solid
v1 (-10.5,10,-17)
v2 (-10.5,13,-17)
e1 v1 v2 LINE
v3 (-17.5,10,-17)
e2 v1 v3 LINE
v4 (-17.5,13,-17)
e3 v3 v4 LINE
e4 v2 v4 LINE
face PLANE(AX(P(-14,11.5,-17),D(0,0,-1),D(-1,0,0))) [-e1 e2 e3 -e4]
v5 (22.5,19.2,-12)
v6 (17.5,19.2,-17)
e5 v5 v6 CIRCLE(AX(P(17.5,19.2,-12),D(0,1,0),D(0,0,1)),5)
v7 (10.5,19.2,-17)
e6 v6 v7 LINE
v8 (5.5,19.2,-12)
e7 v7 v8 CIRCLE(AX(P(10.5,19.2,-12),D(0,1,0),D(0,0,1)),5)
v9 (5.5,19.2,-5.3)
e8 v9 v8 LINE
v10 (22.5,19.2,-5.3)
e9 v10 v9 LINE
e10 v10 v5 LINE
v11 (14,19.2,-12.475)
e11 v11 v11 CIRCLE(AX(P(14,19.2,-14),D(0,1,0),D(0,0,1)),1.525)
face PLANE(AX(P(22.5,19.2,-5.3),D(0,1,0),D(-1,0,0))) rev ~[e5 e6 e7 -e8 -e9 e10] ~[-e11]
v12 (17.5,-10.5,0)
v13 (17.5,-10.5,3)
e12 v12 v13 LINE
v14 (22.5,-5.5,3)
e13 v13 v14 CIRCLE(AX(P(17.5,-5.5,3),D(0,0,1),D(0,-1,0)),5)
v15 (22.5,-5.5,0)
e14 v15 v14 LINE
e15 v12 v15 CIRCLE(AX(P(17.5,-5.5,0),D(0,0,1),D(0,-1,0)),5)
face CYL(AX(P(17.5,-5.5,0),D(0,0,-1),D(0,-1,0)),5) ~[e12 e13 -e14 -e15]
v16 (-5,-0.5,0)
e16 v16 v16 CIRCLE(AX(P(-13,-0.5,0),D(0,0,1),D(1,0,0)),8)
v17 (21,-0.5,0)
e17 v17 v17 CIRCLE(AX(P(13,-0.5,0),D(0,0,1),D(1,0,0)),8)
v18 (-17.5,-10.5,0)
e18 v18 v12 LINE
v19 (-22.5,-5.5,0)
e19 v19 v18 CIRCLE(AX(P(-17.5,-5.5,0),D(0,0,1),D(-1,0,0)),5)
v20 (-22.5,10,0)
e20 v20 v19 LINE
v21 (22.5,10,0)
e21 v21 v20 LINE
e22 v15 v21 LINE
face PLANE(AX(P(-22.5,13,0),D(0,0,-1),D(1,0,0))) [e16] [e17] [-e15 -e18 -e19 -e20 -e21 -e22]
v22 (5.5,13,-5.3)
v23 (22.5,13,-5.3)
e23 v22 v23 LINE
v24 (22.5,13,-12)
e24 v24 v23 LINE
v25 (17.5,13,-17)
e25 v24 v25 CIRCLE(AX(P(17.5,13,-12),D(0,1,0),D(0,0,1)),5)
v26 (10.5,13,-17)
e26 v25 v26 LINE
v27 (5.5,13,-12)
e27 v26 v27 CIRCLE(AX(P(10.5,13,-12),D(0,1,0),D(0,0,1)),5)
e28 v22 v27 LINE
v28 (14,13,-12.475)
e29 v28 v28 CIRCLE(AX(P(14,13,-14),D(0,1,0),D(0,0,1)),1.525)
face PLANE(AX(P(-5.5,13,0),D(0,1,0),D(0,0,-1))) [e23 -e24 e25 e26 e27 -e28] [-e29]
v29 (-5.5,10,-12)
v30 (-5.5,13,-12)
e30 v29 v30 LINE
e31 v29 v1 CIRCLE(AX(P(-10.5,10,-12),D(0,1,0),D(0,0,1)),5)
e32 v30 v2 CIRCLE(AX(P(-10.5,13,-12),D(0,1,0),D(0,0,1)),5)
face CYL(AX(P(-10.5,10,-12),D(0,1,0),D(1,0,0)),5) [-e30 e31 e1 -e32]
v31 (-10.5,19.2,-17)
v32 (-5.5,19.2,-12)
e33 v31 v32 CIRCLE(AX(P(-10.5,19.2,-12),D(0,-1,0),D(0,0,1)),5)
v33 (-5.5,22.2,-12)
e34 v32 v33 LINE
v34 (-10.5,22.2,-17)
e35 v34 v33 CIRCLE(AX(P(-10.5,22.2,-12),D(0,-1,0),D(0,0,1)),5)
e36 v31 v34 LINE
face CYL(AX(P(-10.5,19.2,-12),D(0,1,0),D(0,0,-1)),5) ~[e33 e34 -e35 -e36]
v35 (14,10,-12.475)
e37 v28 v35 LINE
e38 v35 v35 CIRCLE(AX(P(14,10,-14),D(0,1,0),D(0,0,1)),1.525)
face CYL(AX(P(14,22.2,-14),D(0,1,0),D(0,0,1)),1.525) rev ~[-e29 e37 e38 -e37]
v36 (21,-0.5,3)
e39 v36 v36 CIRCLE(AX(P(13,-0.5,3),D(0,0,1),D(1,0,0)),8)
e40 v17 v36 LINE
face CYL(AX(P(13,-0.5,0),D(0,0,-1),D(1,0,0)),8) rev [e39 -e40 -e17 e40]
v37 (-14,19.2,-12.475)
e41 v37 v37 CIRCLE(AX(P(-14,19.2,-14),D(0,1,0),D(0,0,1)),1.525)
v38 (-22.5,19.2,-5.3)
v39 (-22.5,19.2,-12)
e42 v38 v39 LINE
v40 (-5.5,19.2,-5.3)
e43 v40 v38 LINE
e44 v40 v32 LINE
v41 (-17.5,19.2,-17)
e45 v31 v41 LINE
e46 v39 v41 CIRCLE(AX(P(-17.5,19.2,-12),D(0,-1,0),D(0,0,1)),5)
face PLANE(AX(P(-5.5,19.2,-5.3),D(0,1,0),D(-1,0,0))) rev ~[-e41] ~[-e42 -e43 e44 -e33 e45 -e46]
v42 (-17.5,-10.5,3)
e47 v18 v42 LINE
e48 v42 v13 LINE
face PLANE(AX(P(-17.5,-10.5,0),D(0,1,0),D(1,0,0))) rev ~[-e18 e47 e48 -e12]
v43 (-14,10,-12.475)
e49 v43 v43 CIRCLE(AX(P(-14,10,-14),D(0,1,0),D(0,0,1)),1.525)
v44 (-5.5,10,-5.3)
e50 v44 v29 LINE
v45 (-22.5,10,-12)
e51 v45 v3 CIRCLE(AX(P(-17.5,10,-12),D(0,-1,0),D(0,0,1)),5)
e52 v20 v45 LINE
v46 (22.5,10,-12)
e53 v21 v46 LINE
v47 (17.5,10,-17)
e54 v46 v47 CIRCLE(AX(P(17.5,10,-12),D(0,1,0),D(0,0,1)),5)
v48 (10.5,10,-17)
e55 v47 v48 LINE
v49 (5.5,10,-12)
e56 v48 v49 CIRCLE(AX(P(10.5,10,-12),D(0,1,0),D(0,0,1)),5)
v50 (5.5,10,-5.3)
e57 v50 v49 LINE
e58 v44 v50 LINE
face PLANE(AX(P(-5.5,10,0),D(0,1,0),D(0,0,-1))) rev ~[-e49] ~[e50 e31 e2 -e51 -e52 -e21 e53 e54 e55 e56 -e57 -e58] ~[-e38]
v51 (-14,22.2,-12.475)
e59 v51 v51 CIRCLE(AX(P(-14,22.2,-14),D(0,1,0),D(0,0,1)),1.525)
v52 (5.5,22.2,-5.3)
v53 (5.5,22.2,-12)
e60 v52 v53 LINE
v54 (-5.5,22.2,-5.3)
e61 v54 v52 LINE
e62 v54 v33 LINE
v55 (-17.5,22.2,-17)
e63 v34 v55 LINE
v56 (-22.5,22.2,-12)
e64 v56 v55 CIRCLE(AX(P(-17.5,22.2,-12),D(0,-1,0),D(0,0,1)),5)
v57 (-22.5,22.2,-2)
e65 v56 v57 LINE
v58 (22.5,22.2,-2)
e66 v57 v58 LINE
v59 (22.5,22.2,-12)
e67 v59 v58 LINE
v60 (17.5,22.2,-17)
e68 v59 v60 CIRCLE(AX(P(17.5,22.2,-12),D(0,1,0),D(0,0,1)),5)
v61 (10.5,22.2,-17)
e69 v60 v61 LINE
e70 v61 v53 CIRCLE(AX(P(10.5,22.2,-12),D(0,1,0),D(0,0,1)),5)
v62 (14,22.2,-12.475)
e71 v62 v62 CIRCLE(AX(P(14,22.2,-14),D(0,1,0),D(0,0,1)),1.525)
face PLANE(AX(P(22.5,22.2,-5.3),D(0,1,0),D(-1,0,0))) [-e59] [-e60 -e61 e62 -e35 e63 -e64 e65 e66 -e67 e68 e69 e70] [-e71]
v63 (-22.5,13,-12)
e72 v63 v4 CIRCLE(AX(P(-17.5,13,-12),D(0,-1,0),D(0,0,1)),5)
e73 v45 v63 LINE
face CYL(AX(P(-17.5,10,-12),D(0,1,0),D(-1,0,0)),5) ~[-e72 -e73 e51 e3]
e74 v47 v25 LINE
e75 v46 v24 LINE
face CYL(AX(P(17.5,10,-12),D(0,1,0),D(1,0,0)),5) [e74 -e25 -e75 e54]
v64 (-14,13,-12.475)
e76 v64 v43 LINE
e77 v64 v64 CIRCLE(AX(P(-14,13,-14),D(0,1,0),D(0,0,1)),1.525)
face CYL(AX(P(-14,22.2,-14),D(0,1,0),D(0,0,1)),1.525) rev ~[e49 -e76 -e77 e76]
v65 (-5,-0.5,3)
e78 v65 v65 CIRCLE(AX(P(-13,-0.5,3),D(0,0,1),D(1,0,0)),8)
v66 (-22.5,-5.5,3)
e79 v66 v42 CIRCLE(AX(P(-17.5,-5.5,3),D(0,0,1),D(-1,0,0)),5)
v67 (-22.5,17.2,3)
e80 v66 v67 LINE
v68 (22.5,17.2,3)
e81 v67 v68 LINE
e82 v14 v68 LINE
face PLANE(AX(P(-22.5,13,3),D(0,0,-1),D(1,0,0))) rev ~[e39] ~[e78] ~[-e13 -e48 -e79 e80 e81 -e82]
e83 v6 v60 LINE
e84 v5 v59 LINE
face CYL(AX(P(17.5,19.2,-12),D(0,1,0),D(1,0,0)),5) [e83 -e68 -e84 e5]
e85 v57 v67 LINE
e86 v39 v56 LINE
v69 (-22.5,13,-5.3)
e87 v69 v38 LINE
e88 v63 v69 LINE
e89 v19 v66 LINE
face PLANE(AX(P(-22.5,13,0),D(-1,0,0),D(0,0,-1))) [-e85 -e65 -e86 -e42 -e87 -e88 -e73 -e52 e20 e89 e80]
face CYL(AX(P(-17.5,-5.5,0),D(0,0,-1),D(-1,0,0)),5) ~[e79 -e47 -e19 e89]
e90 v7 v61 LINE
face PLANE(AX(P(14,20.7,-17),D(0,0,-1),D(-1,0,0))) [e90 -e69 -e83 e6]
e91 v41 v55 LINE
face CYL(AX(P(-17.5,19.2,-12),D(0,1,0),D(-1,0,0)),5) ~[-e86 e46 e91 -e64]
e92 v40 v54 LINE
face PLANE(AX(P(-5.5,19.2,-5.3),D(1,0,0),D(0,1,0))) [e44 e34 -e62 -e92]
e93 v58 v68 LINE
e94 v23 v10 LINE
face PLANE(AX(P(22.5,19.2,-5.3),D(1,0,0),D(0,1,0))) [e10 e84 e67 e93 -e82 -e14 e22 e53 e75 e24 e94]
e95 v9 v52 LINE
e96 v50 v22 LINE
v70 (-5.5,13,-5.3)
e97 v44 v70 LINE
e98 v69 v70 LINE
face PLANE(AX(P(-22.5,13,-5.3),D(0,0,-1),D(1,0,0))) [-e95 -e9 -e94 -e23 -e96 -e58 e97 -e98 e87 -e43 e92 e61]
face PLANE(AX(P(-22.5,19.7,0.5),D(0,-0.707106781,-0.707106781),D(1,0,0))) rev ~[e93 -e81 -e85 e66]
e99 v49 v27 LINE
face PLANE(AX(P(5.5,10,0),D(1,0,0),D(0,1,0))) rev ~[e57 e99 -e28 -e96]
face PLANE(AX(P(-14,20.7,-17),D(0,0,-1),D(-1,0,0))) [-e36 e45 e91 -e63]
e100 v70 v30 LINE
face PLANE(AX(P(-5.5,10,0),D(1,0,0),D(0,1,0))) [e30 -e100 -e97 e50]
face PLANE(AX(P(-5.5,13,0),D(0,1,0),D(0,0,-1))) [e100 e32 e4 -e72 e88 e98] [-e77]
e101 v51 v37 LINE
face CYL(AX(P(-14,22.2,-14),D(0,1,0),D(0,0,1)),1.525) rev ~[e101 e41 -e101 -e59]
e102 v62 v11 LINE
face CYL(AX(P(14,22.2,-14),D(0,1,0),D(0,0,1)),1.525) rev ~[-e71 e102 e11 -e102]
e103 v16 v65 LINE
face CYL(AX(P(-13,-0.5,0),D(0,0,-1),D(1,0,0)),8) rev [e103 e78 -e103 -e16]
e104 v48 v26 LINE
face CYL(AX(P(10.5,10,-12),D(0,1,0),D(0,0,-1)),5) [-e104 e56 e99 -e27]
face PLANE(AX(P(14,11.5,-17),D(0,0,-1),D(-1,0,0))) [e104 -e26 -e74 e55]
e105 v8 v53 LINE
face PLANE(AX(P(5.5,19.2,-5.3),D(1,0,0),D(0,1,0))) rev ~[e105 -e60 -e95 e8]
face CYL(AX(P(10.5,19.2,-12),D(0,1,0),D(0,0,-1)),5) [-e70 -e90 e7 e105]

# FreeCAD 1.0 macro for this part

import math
import FreeCAD as App
import Part
import Sketcher

V = App.Vector


def edges_at(feature, points):
    """Names of the edges that pass closest to the given points."""
    edges = feature.Shape.Edges
    near = lambda p: min(range(len(edges)), key=lambda i: edges[i].distToShape(Part.Vertex(*p))[0])
    return sorted({f"Edge{near(p) + 1}" for p in points})

doc = App.newDocument("Part")
params = doc.addObject("Spreadsheet::Sheet", "Params")
for row, (alias, value) in enumerate([
    ("sketch1_diameter", "16 mm"),
    ("sketch1_radius", "5 mm"),
    ("sketch1_width", "35 mm"),
    ("sketch1_height", "18.5 mm"),
    ("pad1_length", "3 mm"),
    ("sketch2_width", "17 mm"),
    ("sketch2_height", "3 mm"),
    ("pad2_length", "17 mm"),
    ("sketch3_width", "45 mm"),
    ("sketch3_height", "3 mm"),
    ("pad3_length", "9.2 mm"),
    ("sketch4_width", "3 mm"),
    ("sketch4_height", "5.3 mm"),
    ("sketch5_width", "45 mm"),
    ("sketch5_height", "5.3 mm"),
    ("pad5_length", "9.2 mm"),
    ("sketch6_width", "17 mm"),
    ("sketch6_height", "3 mm"),
    ("pad6_length", "11.7 mm"),
    ("sketch7_diameter", "3.05 mm"),
    ("chamfer_size", "5 mm"),
    ("fillet_radius", "5 mm"),
], start=1):
    params.set(f"A{row}", alias)
    params.set(f"B{row}", "=" + value)
    params.setAlias(f"B{row}", alias)

body = doc.addObject("PartDesign::Body", "Body")

sketch1 = doc.addObject("Sketcher::SketchObject", "Sketch")
body.addObject(sketch1)
sketch1.AttachmentSupport = (doc.XY_Plane, [""])
sketch1.MapMode = "FlatFace"
sketch1.addGeometry([
    Part.LineSegment(V(-18, -10, 0), V(18, -10, 0)),
    Part.ArcOfCircle(Part.Circle(V(18, -6, 0), V(0, 0, 1), 5), math.radians(-90), math.radians(0)),
    Part.LineSegment(V(22, -6, 0), V(22, 13, 0)),
    Part.LineSegment(V(22, 13, 0), V(-22, 13, 0)),
    Part.LineSegment(V(-22, 13, 0), V(-22, -6, 0)),
    Part.ArcOfCircle(Part.Circle(V(-18, -6, 0), V(0, 0, 1), 5), math.radians(180), math.radians(270)),
    Part.Circle(V(-13, 0, 0), V(0, 0, 1), 8),
    Part.Circle(V(13, 0, 0), V(0, 0, 1), 8),
], False)
sketch1.addConstraint([
    Sketcher.Constraint("Tangent", 0, 2, 1, 1),
    Sketcher.Constraint("Tangent", 1, 2, 2, 1),
    Sketcher.Constraint("Coincident", 2, 2, 3, 1),
    Sketcher.Constraint("Coincident", 3, 2, 4, 1),
    Sketcher.Constraint("Tangent", 4, 2, 5, 1),
    Sketcher.Constraint("Tangent", 5, 2, 0, 1),
    Sketcher.Constraint("Horizontal", 0),
    Sketcher.Constraint("Vertical", 2),
    Sketcher.Constraint("Horizontal", 3),
    Sketcher.Constraint("Vertical", 4),
    Sketcher.Constraint("Equal", 1, 5),
    Sketcher.Constraint("Equal", 6, 7),
    Sketcher.Constraint("Symmetric", 6, 3, 7, 3, -2),
    Sketcher.Constraint("Diameter", 6, 16.0),
    Sketcher.Constraint("Radius", 1, 5.0),
    Sketcher.Constraint("DistanceX", 0, 1, 0, 2, 35.0),
    Sketcher.Constraint("DistanceY", 2, 1, 2, 2, 18.5),
    Sketcher.Constraint("DistanceX", 6, 3, -1, 1, 13.0),
    Sketcher.Constraint("DistanceY", -1, 1, 2, 2, 13.0),
    Sketcher.Constraint("DistanceY", 5, 3, 6, 3, 5.0),
    Sketcher.Constraint("DistanceX", -1, 1, 1, 3, 17.5),
])
sketch1.setExpression("Constraints[13]", "Params.sketch1_diameter")
sketch1.setExpression("Constraints[14]", "Params.sketch1_radius")
sketch1.setExpression("Constraints[15]", "Params.sketch1_width")
sketch1.setExpression("Constraints[16]", "Params.sketch1_height")
pad1 = doc.addObject("PartDesign::Pad", "Pad")
body.addObject(pad1)
pad1.Profile = sketch1
pad1.setExpression("Length", "Params.pad1_length")

sketch2 = doc.addObject("Sketcher::SketchObject", "Sketch001")
body.addObject(sketch2)
sketch2.AttachmentSupport = (doc.XY_Plane, [""])
sketch2.MapMode = "FlatFace"
sketch2.addGeometry([
    Part.LineSegment(V(22.5, 13, 0), V(22.5, 10, 0)),
    Part.LineSegment(V(22.5, 10, 0), V(5.5, 10, 0)),
    Part.LineSegment(V(5.5, 10, 0), V(5.5, 13, 0)),
    Part.LineSegment(V(5.5, 13, 0), V(22.5, 13, 0)),
    Part.LineSegment(V(-5.5, 13, 0), V(-5.5, 10, 0)),
    Part.LineSegment(V(-5.5, 10, 0), V(-22.5, 10, 0)),
    Part.LineSegment(V(-22.5, 10, 0), V(-22.5, 13, 0)),
    Part.LineSegment(V(-22.5, 13, 0), V(-5.5, 13, 0)),
], False)
sketch2.addConstraint([
    Sketcher.Constraint("Coincident", 0, 2, 1, 1),
    Sketcher.Constraint("Coincident", 1, 2, 2, 1),
    Sketcher.Constraint("Coincident", 2, 2, 3, 1),
    Sketcher.Constraint("Coincident", 3, 2, 0, 1),
    Sketcher.Constraint("Coincident", 4, 2, 5, 1),
    Sketcher.Constraint("Coincident", 5, 2, 6, 1),
    Sketcher.Constraint("Coincident", 6, 2, 7, 1),
    Sketcher.Constraint("Coincident", 7, 2, 4, 1),
    Sketcher.Constraint("Vertical", 0),
    Sketcher.Constraint("Horizontal", 1),
    Sketcher.Constraint("Vertical", 2),
    Sketcher.Constraint("Horizontal", 3),
    Sketcher.Constraint("Vertical", 4),
    Sketcher.Constraint("Horizontal", 5),
    Sketcher.Constraint("Vertical", 6),
    Sketcher.Constraint("Horizontal", 7),
    Sketcher.Constraint("Symmetric", 1, 2, 4, 2, -2),
    Sketcher.Constraint("Symmetric", 3, 2, 6, 2, -2),
    Sketcher.Constraint("DistanceX", 1, 2, 1, 1, 17.0),
    Sketcher.Constraint("DistanceY", 0, 2, 0, 1, 3.0),
    Sketcher.Constraint("DistanceY", -1, 1, 0, 2, 10.0),
    Sketcher.Constraint("DistanceX", 4, 2, 1, 2, 11.0),
])
sketch2.setExpression("Constraints[18]", "Params.sketch2_width")
sketch2.setExpression("Constraints[19]", "Params.sketch2_height")
pad2 = doc.addObject("PartDesign::Pad", "Pad001")
body.addObject(pad2)
pad2.Profile = sketch2
pad2.setExpression("Length", "Params.pad2_length")
pad2.Reversed = True

sketch3 = doc.addObject("Sketcher::SketchObject", "Sketch002")
body.addObject(sketch3)
sketch3.AttachmentSupport = (doc.XZ_Plane, [""])
sketch3.MapMode = "FlatFace"
sketch3.AttachmentOffset = App.Placement(V(0, 0, -13), App.Rotation())
sketch3.addGeometry([
    Part.LineSegment(V(-22.5, 0, 0), V(-22.5, 3, 0)),
    Part.LineSegment(V(-22.5, 3, 0), V(22.5, 3, 0)),
    Part.LineSegment(V(22.5, 3, 0), V(22.5, 0, 0)),
    Part.LineSegment(V(22.5, 0, 0), V(-22.5, 0, 0)),
], False)
sketch3.addConstraint([
    Sketcher.Constraint("Coincident", 0, 2, 1, 1),
    Sketcher.Constraint("Coincident", 1, 2, 2, 1),
    Sketcher.Constraint("Coincident", 2, 2, 3, 1),
    Sketcher.Constraint("Coincident", 3, 2, 0, 1),
    Sketcher.Constraint("Vertical", 0),
    Sketcher.Constraint("Horizontal", 1),
    Sketcher.Constraint("Vertical", 2),
    Sketcher.Constraint("Horizontal", 3),
    Sketcher.Constraint("Symmetric", 2, 2, 3, 2, -1, 1),
    Sketcher.Constraint("DistanceX", 1, 1, 1, 2, 45.0),
    Sketcher.Constraint("DistanceY", 0, 1, 0, 2, 3.0),
])
sketch3.setExpression("Constraints[9]", "Params.sketch3_width")
sketch3.setExpression("Constraints[10]", "Params.sketch3_height")
pad3 = doc.addObject("PartDesign::Pad", "Pad002")
body.addObject(pad3)
pad3.Profile = sketch3
pad3.setExpression("Length", "Params.pad3_length")
pad3.Reversed = True

sketch4 = doc.addObject("Sketcher::SketchObject", "Sketch003")
body.addObject(sketch4)
sketch4.AttachmentSupport = (doc.YZ_Plane, [""])
sketch4.MapMode = "FlatFace"
sketch4.AttachmentOffset = App.Placement(V(0, 0, -5.5), App.Rotation())
sketch4.addGeometry([
    Part.LineSegment(V(13, 0, 0), V(10, 0, 0)),
    Part.LineSegment(V(10, 0, 0), V(10, -5.3, 0)),
    Part.LineSegment(V(10, -5.3, 0), V(13, -5.3, 0)),
    Part.LineSegment(V(13, -5.3, 0), V(13, 0, 0)),
], False)
sketch4.addConstraint([
    Sketcher.Constraint("Coincident", 0, 2, 1, 1),
    Sketcher.Constraint("Coincident", 1, 2, 2, 1),
    Sketcher.Constraint("Coincident", 2, 2, 3, 1),
    Sketcher.Constraint("Coincident", 3, 2, 0, 1),
    Sketcher.Constraint("Horizontal", 0),
    Sketcher.Constraint("Vertical", 1),
    Sketcher.Constraint("Horizontal", 2),
    Sketcher.Constraint("Vertical", 3),
    Sketcher.Constraint("PointOnObject", 0, 2, -1),
    Sketcher.Constraint("DistanceX", 0, 2, 0, 1, 3.0),
    Sketcher.Constraint("DistanceY", 1, 2, 1, 1, 5.3),
    Sketcher.Constraint("DistanceX", -1, 1, 0, 2, 10.0),
])
sketch4.setExpression("Constraints[9]", "Params.sketch4_width")
sketch4.setExpression("Constraints[10]", "Params.sketch4_height")
pad4 = doc.addObject("PartDesign::Pad", "Pad003")
body.addObject(pad4)
pad4.Profile = sketch4
pad4.Type = "UpToFirst"

sketch5 = doc.addObject("Sketcher::SketchObject", "Sketch004")
body.addObject(sketch5)
sketch5.AttachmentSupport = (doc.XZ_Plane, [""])
sketch5.MapMode = "FlatFace"
sketch5.AttachmentOffset = App.Placement(V(0, 0, -13), App.Rotation())
sketch5.addGeometry([
    Part.LineSegment(V(-22, -5, 0), V(-22, 0, 0)),
    Part.LineSegment(V(-22, 0, 0), V(22, 0, 0)),
    Part.LineSegment(V(22, 0, 0), V(22, -5, 0)),
    Part.LineSegment(V(22, -5, 0), V(-22, -5, 0)),
], False)
sketch5.addConstraint([
    Sketcher.Constraint("Coincident", 0, 2, 1, 1),
    Sketcher.Constraint("Coincident", 1, 2, 2, 1),
    Sketcher.Constraint("Coincident", 2, 2, 3, 1),
    Sketcher.Constraint("Coincident", 3, 2, 0, 1),
    Sketcher.Constraint("Vertical", 0),
    Sketcher.Constraint("Horizontal", 1),
    Sketcher.Constraint("Vertical", 2),
    Sketcher.Constraint("Horizontal", 3),
    Sketcher.Constraint("Symmetric", 0, 2, 1, 2, -1, 1),
    Sketcher.Constraint("DistanceX", 1, 1, 1, 2, 45.0),
    Sketcher.Constraint("DistanceY", 0, 1, 0, 2, 5.3),
])
sketch5.setExpression("Constraints[9]", "Params.sketch5_width")
sketch5.setExpression("Constraints[10]", "Params.sketch5_height")
pad5 = doc.addObject("PartDesign::Pad", "Pad004")
body.addObject(pad5)
pad5.Profile = sketch5
pad5.setExpression("Length", "Params.pad5_length")
pad5.Reversed = True

sketch6 = doc.addObject("Sketcher::SketchObject", "Sketch005")
body.addObject(sketch6)
sketch6.AttachmentSupport = (doc.XY_Plane, [""])
sketch6.MapMode = "FlatFace"
sketch6.AttachmentOffset = App.Placement(V(0, 0, -5.3), App.Rotation())
sketch6.addGeometry([
    Part.LineSegment(V(22.5, 22.2, 0), V(22.5, 19.2, 0)),
    Part.LineSegment(V(22.5, 19.2, 0), V(5.5, 19.2, 0)),
    Part.LineSegment(V(5.5, 19.2, 0), V(5.5, 22.2, 0)),
    Part.LineSegment(V(5.5, 22.2, 0), V(22.5, 22.2, 0)),
    Part.LineSegment(V(-5.5, 22.2, 0), V(-5.5, 19.2, 0)),
    Part.LineSegment(V(-5.5, 19.2, 0), V(-22.5, 19.2, 0)),
    Part.LineSegment(V(-22.5, 19.2, 0), V(-22.5, 22.2, 0)),
    Part.LineSegment(V(-22.5, 22.2, 0), V(-5.5, 22.2, 0)),
], False)
sketch6.addConstraint([
    Sketcher.Constraint("Coincident", 0, 2, 1, 1),
    Sketcher.Constraint("Coincident", 1, 2, 2, 1),
    Sketcher.Constraint("Coincident", 2, 2, 3, 1),
    Sketcher.Constraint("Coincident", 3, 2, 0, 1),
    Sketcher.Constraint("Coincident", 4, 2, 5, 1),
    Sketcher.Constraint("Coincident", 5, 2, 6, 1),
    Sketcher.Constraint("Coincident", 6, 2, 7, 1),
    Sketcher.Constraint("Coincident", 7, 2, 4, 1),
    Sketcher.Constraint("Vertical", 0),
    Sketcher.Constraint("Horizontal", 1),
    Sketcher.Constraint("Vertical", 2),
    Sketcher.Constraint("Horizontal", 3),
    Sketcher.Constraint("Vertical", 4),
    Sketcher.Constraint("Horizontal", 5),
    Sketcher.Constraint("Vertical", 6),
    Sketcher.Constraint("Horizontal", 7),
    Sketcher.Constraint("Symmetric", 1, 2, 4, 2, -2),
    Sketcher.Constraint("Symmetric", 3, 2, 6, 2, -2),
    Sketcher.Constraint("DistanceX", 1, 2, 1, 1, 17.0),
    Sketcher.Constraint("DistanceY", 0, 2, 0, 1, 3.0),
    Sketcher.Constraint("DistanceX", 4, 2, 1, 2, 11.0),
    Sketcher.Constraint("DistanceY", -1, 1, 0, 2, 19.2),
])
sketch6.setExpression("Constraints[18]", "Params.sketch6_width")
sketch6.setExpression("Constraints[19]", "Params.sketch6_height")
pad6 = doc.addObject("PartDesign::Pad", "Pad005")
body.addObject(pad6)
pad6.Profile = sketch6
pad6.setExpression("Length", "Params.pad6_length")
pad6.Reversed = True

sketch7 = doc.addObject("Sketcher::SketchObject", "Sketch006")
body.addObject(sketch7)
sketch7.AttachmentSupport = (doc.XZ_Plane, [""])
sketch7.MapMode = "FlatFace"
sketch7.AttachmentOffset = App.Placement(V(0, 0, -22.2), App.Rotation())
sketch7.addGeometry([
    Part.Circle(V(14, -14, 0), V(0, 0, 1), 1.5),
    Part.Circle(V(-14, -14, 0), V(0, 0, 1), 1.5),
], False)
sketch7.addConstraint([
    Sketcher.Constraint("Equal", 0, 1),
    Sketcher.Constraint("Symmetric", 0, 3, 1, 3, -2),
    Sketcher.Constraint("Diameter", 0, 3.05),
    Sketcher.Constraint("DistanceX", -1, 1, 0, 3, 14.0),
    Sketcher.Constraint("DistanceY", 0, 3, -1, 1, 14.0),
])
sketch7.setExpression("Constraints[2]", "Params.sketch7_diameter")
pocket1 = doc.addObject("PartDesign::Pocket", "Pocket")
body.addObject(pocket1)
pocket1.Profile = sketch7
pocket1.Type = "ThroughAll"
pocket1.Reversed = True
doc.recompute()

chamfer = doc.addObject("PartDesign::Chamfer", "Chamfer")
body.addObject(chamfer)
chamfer.Base = (pocket1, edges_at(pocket1, [(0, 22.2, 3)]))
chamfer.setExpression("Size", "Params.chamfer_size")
doc.recompute()

fillet = doc.addObject("PartDesign::Fillet", "Fillet")
body.addObject(fillet)
fillet.Base = (chamfer, edges_at(chamfer, [
    (22.5, 20.7, -17),
    (5.5, 20.7, -17),
    (-22.5, 20.7, -17),
    (-5.5, 20.7, -17),
    (5.5, 11.5, -17),
    (22.5, 11.5, -17),
    (-5.5, 11.5, -17),
    (-22.5, 11.5, -17),
]))
fillet.setExpression("Radius", "Params.fillet_radius")

doc.recompute()
